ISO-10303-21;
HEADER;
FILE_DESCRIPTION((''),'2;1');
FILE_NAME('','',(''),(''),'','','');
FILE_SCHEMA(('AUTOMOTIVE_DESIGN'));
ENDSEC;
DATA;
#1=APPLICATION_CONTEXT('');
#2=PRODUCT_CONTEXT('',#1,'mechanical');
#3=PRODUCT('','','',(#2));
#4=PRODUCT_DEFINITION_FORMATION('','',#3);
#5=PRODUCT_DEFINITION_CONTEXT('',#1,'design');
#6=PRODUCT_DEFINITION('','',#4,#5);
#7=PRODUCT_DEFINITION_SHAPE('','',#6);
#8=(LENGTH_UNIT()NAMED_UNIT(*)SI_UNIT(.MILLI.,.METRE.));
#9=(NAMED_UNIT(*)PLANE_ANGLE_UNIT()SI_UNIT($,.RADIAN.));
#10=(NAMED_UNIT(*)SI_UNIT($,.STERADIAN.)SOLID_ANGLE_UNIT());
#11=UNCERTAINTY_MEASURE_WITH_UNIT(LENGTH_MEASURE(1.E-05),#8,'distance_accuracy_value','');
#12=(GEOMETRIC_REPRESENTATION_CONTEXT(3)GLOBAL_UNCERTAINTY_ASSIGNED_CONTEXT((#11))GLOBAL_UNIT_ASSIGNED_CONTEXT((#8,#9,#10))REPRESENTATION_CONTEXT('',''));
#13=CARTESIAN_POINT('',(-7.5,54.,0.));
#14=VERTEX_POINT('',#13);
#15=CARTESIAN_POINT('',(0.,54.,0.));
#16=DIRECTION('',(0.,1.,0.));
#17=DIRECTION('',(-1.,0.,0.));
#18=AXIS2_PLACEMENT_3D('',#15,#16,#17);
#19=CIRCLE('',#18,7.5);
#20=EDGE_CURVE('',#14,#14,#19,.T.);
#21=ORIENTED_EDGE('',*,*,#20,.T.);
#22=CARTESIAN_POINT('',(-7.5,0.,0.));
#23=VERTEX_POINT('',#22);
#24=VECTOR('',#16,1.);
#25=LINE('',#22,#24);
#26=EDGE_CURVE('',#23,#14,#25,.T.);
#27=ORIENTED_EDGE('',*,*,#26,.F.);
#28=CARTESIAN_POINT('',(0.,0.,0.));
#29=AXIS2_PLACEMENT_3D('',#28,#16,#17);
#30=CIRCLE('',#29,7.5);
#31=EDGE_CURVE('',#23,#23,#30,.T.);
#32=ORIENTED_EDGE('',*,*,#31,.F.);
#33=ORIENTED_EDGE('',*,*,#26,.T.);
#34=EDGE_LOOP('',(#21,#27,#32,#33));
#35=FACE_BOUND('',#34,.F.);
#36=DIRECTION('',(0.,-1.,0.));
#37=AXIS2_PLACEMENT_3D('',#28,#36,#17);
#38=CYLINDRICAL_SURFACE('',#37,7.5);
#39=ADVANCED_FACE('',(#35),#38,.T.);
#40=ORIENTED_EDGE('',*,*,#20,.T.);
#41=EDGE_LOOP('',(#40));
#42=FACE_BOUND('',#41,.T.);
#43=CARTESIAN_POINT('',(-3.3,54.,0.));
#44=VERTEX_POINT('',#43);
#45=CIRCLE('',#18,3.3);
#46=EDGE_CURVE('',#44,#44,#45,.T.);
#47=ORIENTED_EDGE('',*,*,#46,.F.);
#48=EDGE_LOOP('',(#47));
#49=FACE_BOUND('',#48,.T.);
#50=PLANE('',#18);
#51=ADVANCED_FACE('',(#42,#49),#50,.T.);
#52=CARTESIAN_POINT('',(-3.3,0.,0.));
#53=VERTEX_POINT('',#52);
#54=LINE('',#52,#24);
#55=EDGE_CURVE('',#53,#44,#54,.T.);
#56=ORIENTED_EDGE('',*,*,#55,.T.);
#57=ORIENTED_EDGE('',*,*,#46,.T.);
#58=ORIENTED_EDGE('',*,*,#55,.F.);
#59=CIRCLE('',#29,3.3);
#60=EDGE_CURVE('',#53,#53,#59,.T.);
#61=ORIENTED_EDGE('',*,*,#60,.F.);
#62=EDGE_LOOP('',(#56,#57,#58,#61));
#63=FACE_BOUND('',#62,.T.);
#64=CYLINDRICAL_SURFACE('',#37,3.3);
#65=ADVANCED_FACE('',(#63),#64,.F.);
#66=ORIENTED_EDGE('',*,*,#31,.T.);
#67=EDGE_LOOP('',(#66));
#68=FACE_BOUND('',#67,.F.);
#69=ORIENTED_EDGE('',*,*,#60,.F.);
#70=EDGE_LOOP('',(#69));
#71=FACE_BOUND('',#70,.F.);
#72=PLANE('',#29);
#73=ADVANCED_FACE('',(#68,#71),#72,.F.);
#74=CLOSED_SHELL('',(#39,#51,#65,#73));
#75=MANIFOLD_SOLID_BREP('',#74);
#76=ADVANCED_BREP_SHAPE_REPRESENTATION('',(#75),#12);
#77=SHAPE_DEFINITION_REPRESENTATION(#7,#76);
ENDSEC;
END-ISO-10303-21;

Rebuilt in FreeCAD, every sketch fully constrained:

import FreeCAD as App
import Part
import Sketcher
Q = App.Units.Quantity

doc = App.newDocument("Part")
params = doc.addObject("Spreadsheet::Sheet", "Params")
for row, (alias, value) in enumerate([
    ("sketch1_diameter", "15 mm"),
    ("sketch1_diameter2", "6.6 mm"),
    ("pad1_length", "54 mm"),
], start=1):
    params.set(f"A{row}", alias)
    params.set(f"B{row}", "=" + value)
    params.setAlias(f"B{row}", alias)

body = doc.addObject("PartDesign::Body", "Body")

sketch1 = body.newObject("Sketcher::SketchObject", "Sketch")
sketch1.AttachmentSupport = (doc.getObject("XZ_Plane"), [""])
sketch1.MapMode = "FlatFace"
sketch1.addGeometry(Part.Circle(App.Vector(0, 0, 0), App.Vector(0, 0, 1), 7.5), False)
sketch1.addGeometry(Part.Circle(App.Vector(0, 0, 0), App.Vector(0, 0, 1), 3.3), False)
sketch1.addConstraint(Sketcher.Constraint("Coincident", 0, 3, -1, 1))
sketch1.addConstraint(Sketcher.Constraint("Coincident", 1, 3, -1, 1))
sketch1.addConstraint(Sketcher.Constraint("Diameter", 0, Q("15 mm")))
sketch1.addConstraint(Sketcher.Constraint("Diameter", 1, Q("6.6 mm")))
sketch1.setExpression("Constraints[2]", "Params.sketch1_diameter")
sketch1.setExpression("Constraints[3]", "Params.sketch1_diameter2")
pad1 = body.newObject("PartDesign::Pad", "Pad")
pad1.Profile = sketch1
pad1.setExpression("Length", "Params.pad1_length")
pad1.Reversed = True

doc.recompute()
